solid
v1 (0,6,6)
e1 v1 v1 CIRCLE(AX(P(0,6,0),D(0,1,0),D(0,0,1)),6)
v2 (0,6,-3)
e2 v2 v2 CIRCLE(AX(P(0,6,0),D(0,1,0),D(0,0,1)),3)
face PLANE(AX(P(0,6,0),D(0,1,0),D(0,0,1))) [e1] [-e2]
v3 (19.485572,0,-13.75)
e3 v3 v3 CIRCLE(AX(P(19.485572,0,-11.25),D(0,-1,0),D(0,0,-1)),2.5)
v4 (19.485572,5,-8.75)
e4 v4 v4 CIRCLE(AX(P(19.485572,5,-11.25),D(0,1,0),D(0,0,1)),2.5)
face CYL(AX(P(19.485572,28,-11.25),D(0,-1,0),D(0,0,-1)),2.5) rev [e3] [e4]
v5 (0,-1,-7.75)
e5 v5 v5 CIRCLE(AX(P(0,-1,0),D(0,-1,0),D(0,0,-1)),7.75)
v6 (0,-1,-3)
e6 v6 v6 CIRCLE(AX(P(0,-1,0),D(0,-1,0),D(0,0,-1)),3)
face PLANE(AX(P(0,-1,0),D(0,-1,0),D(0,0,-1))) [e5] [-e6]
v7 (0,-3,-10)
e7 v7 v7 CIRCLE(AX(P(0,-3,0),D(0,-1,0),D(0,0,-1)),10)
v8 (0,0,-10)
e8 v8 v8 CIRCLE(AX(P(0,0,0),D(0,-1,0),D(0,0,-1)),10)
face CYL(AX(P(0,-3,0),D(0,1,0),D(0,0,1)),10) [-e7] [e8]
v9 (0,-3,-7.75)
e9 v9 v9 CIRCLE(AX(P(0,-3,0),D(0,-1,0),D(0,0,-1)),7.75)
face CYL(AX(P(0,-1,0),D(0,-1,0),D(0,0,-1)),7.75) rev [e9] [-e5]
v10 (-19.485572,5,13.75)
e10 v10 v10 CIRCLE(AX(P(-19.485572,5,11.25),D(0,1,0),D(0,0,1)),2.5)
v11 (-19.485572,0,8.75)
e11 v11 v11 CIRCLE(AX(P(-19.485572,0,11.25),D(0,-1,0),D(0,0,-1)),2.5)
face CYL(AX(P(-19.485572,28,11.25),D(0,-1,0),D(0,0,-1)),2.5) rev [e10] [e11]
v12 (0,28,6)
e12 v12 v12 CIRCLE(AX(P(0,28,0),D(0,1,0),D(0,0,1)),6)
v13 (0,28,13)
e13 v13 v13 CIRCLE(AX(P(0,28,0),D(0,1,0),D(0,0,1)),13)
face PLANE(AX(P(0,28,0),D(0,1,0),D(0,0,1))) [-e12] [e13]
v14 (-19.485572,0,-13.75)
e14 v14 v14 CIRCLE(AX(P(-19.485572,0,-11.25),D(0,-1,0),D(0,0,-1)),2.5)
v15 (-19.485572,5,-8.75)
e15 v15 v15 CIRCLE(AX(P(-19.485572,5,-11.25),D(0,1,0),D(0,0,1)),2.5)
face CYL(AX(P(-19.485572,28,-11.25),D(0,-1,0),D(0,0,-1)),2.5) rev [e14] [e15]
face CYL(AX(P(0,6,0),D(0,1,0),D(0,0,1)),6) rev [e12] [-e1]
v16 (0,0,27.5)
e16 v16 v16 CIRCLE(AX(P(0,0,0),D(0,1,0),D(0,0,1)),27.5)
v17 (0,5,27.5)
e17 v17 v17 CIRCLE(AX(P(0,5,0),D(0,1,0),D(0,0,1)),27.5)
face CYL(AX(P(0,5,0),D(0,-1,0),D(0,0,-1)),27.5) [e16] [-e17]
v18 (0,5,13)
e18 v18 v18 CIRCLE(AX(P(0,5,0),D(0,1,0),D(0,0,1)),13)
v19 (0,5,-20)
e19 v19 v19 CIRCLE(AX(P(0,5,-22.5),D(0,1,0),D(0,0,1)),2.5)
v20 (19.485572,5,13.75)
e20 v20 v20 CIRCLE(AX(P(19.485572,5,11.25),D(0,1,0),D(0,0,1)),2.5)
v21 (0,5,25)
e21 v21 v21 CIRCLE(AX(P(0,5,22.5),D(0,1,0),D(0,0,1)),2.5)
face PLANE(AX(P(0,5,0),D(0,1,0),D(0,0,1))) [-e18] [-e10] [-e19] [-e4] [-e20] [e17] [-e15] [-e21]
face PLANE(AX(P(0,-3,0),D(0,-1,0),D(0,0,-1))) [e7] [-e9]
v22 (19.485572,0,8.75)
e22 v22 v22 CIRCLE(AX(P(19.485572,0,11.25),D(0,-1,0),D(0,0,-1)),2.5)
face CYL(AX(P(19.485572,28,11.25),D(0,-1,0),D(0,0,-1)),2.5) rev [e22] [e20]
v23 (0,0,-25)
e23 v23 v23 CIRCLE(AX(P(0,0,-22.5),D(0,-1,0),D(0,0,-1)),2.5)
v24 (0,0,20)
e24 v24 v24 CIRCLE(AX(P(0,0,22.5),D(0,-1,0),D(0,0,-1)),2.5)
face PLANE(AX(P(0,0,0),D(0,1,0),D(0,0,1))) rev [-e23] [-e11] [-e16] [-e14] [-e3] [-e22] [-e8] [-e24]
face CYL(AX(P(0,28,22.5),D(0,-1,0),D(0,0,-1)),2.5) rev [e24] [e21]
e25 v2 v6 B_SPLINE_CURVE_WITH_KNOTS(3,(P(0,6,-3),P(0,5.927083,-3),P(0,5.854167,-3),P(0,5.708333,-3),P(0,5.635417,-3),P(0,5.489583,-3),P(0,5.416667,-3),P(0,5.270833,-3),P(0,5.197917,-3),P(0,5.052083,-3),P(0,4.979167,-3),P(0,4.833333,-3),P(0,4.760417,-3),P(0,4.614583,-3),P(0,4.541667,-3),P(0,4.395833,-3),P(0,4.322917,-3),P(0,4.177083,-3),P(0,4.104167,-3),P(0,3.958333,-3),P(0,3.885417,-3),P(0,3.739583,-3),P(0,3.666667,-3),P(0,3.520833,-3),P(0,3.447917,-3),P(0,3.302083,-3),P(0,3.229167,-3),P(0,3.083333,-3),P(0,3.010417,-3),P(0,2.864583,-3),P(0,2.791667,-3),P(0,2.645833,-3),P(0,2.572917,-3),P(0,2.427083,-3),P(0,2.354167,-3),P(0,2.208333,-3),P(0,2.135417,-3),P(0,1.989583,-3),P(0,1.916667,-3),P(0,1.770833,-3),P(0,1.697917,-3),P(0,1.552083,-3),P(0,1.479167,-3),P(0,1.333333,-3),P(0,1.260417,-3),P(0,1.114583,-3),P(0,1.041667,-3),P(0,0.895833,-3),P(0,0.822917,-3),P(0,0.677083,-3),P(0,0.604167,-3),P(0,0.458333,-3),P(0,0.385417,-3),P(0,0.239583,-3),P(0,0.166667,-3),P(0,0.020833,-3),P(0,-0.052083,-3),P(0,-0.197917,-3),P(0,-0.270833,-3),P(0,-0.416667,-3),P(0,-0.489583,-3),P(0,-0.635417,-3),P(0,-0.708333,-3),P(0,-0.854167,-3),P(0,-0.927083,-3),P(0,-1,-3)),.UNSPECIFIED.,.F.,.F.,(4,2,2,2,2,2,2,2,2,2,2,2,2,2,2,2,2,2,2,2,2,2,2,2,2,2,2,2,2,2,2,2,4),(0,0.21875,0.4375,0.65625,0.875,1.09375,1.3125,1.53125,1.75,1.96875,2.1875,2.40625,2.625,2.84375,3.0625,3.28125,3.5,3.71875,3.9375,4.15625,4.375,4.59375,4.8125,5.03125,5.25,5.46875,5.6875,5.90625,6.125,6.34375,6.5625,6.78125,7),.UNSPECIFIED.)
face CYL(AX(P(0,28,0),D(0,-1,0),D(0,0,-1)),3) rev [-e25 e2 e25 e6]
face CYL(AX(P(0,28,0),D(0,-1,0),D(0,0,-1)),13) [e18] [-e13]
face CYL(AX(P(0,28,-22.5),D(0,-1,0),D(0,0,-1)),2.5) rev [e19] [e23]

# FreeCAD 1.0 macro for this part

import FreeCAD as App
import Part
import Sketcher
from FreeCAD import Vector

doc = App.newDocument("Part")
body = doc.addObject("PartDesign::Body", "Body")

# Sketch on XZ plane
sketch1 = body.newObject("Sketcher::SketchObject", "Sketch")
sketch1.AttachmentSupport = (doc.getObject("XZ_Plane"), [""])
sketch1.MapMode = "FlatFace"
sketch1.addGeometry(Part.Circle(Vector(0, 0, 0), Vector(0, 0, 1), 27.5), False)
sketch1.addConstraint([
    Sketcher.Constraint("Coincident", 0, 3, -1, 1),
    Sketcher.Constraint("Diameter", 0, 55.0),
])
pad1 = body.newObject("PartDesign::Pad", "Pad")
pad1.Profile = sketch1
pad1.Length = 5
pad1.Reversed = True

# Sketch on XZ plane
sketch2 = body.newObject("Sketcher::SketchObject", "Sketch001")
sketch2.AttachmentSupport = (doc.getObject("XZ_Plane"), [""])
sketch2.MapMode = "FlatFace"
sketch2.addGeometry(Part.Circle(Vector(0, 0, 0), Vector(0, 0, 1), 10), False)
sketch2.addConstraint([
    Sketcher.Constraint("Coincident", 0, 3, -1, 1),
    Sketcher.Constraint("Diameter", 0, 20.0),
])
pad2 = body.newObject("PartDesign::Pad", "Pad001")
pad2.Profile = sketch2
pad2.Length = 3

# Sketch on XZ plane
sketch3 = body.newObject("Sketcher::SketchObject", "Sketch002")
sketch3.AttachmentSupport = (doc.getObject("XZ_Plane"), [""])
sketch3.MapMode = "FlatFace"
sketch3.AttachmentOffset = App.Placement(Vector(0, 0, -5), App.Rotation())
sketch3.addGeometry(Part.Circle(Vector(0, 0, 0), Vector(0, 0, 1), 13), False)
sketch3.addConstraint([
    Sketcher.Constraint("Coincident", 0, 3, -1, 1),
    Sketcher.Constraint("Diameter", 0, 26.0),
])
pad3 = body.newObject("PartDesign::Pad", "Pad002")
pad3.Profile = sketch3
pad3.Length = 23
pad3.Reversed = True

# Sketch on XZ plane
sketch4 = body.newObject("Sketcher::SketchObject", "Sketch003")
sketch4.AttachmentSupport = (doc.getObject("XZ_Plane"), [""])
sketch4.MapMode = "FlatFace"
sketch4.AttachmentOffset = App.Placement(Vector(0, 0, -28), App.Rotation())
sketch4.addGeometry(Part.Circle(Vector(0, 0, 0), Vector(0, 0, 1), 6), False)
sketch4.addConstraint([
    Sketcher.Constraint("Coincident", 0, 3, -1, 1),
    Sketcher.Constraint("Diameter", 0, 12.0),
])
pocket1 = body.newObject("PartDesign::Pocket", "Pocket")
pocket1.Profile = sketch4
pocket1.Length = 22
pocket1.Reversed = True

# Sketch on XZ plane
sketch5 = body.newObject("Sketcher::SketchObject", "Sketch004")
sketch5.AttachmentSupport = (doc.getObject("XZ_Plane"), [""])
sketch5.MapMode = "FlatFace"
sketch5.AttachmentOffset = App.Placement(Vector(0, 0, 3), App.Rotation())
sketch5.addGeometry(Part.Circle(Vector(0, 0, 0), Vector(0, 0, 1), 7.75), False)
sketch5.addConstraint([
    Sketcher.Constraint("Coincident", 0, 3, -1, 1),
    Sketcher.Constraint("Diameter", 0, 15.5),
])
pocket2 = body.newObject("PartDesign::Pocket", "Pocket001")
pocket2.Profile = sketch5
pocket2.Length = 2

# Sketch on XZ plane
sketch6 = body.newObject("Sketcher::SketchObject", "Sketch005")
sketch6.AttachmentSupport = (doc.getObject("XZ_Plane"), [""])
sketch6.MapMode = "FlatFace"
sketch6.AttachmentOffset = App.Placement(Vector(0, 0, 1), App.Rotation())
sketch6.addGeometry(Part.Circle(Vector(0, 0, 0), Vector(0, 0, 1), 3), False)
sketch6.addConstraint([
    Sketcher.Constraint("Coincident", 0, 3, -1, 1),
    Sketcher.Constraint("Diameter", 0, 6.0),
])
pocket3 = body.newObject("PartDesign::Pocket", "Pocket002")
pocket3.Profile = sketch6
pocket3.Type = "ThroughAll"

# Sketch on XZ plane
sketch7 = body.newObject("Sketcher::SketchObject", "Sketch006")
sketch7.AttachmentSupport = (doc.getObject("XZ_Plane"), [""])
sketch7.MapMode = "FlatFace"
sketch7.addGeometry([
    Part.Circle(Vector(0, 22.5, 0), Vector(0, 0, 1), 2.5),  # 0
    Part.Circle(Vector(19.485572, 11.25, 0), Vector(0, 0, 1), 2.5),  # 1
    Part.Circle(Vector(19.485572, -11.25, 0), Vector(0, 0, 1), 2.5),  # 2
    Part.Circle(Vector(0, -22.5, 0), Vector(0, 0, 1), 2.5),  # 3
    Part.Circle(Vector(-19.485572, -11.25, 0), Vector(0, 0, 1), 2.5),  # 4
    Part.Circle(Vector(-19.485572, 11.25, 0), Vector(0, 0, 1), 2.5),  # 5
], False)
sketch7.addConstraint([
    Sketcher.Constraint("Equal", 0, 1),
    Sketcher.Constraint("Equal", 1, 2),
    Sketcher.Constraint("Equal", 2, 3),
    Sketcher.Constraint("Equal", 3, 4),
    Sketcher.Constraint("Equal", 4, 5),
    Sketcher.Constraint("Symmetric", 0, 3, 3, 3, -1, 1),
    Sketcher.Constraint("Symmetric", 1, 3, 4, 3, -1, 1),
    Sketcher.Constraint("Symmetric", 2, 3, 5, 3, -1, 1),
    Sketcher.Constraint("Symmetric", 2, 3, 4, 3, -2),
    Sketcher.Constraint("PointOnObject", 0, 3, -2),
    Sketcher.Constraint("Diameter", 0, 5.0),
    Sketcher.Constraint("DistanceY", 3, 3, 0, 3, 45.0),
    Sketcher.Constraint("DistanceY", 2, 3, 1, 3, 22.5),
    Sketcher.Constraint("DistanceX", -1, 1, 1, 3, 19.485572),
])
pocket4 = body.newObject("PartDesign::Pocket", "Pocket003")
pocket4.Profile = sketch7
pocket4.Type = "ThroughAll"

doc.recompute()
